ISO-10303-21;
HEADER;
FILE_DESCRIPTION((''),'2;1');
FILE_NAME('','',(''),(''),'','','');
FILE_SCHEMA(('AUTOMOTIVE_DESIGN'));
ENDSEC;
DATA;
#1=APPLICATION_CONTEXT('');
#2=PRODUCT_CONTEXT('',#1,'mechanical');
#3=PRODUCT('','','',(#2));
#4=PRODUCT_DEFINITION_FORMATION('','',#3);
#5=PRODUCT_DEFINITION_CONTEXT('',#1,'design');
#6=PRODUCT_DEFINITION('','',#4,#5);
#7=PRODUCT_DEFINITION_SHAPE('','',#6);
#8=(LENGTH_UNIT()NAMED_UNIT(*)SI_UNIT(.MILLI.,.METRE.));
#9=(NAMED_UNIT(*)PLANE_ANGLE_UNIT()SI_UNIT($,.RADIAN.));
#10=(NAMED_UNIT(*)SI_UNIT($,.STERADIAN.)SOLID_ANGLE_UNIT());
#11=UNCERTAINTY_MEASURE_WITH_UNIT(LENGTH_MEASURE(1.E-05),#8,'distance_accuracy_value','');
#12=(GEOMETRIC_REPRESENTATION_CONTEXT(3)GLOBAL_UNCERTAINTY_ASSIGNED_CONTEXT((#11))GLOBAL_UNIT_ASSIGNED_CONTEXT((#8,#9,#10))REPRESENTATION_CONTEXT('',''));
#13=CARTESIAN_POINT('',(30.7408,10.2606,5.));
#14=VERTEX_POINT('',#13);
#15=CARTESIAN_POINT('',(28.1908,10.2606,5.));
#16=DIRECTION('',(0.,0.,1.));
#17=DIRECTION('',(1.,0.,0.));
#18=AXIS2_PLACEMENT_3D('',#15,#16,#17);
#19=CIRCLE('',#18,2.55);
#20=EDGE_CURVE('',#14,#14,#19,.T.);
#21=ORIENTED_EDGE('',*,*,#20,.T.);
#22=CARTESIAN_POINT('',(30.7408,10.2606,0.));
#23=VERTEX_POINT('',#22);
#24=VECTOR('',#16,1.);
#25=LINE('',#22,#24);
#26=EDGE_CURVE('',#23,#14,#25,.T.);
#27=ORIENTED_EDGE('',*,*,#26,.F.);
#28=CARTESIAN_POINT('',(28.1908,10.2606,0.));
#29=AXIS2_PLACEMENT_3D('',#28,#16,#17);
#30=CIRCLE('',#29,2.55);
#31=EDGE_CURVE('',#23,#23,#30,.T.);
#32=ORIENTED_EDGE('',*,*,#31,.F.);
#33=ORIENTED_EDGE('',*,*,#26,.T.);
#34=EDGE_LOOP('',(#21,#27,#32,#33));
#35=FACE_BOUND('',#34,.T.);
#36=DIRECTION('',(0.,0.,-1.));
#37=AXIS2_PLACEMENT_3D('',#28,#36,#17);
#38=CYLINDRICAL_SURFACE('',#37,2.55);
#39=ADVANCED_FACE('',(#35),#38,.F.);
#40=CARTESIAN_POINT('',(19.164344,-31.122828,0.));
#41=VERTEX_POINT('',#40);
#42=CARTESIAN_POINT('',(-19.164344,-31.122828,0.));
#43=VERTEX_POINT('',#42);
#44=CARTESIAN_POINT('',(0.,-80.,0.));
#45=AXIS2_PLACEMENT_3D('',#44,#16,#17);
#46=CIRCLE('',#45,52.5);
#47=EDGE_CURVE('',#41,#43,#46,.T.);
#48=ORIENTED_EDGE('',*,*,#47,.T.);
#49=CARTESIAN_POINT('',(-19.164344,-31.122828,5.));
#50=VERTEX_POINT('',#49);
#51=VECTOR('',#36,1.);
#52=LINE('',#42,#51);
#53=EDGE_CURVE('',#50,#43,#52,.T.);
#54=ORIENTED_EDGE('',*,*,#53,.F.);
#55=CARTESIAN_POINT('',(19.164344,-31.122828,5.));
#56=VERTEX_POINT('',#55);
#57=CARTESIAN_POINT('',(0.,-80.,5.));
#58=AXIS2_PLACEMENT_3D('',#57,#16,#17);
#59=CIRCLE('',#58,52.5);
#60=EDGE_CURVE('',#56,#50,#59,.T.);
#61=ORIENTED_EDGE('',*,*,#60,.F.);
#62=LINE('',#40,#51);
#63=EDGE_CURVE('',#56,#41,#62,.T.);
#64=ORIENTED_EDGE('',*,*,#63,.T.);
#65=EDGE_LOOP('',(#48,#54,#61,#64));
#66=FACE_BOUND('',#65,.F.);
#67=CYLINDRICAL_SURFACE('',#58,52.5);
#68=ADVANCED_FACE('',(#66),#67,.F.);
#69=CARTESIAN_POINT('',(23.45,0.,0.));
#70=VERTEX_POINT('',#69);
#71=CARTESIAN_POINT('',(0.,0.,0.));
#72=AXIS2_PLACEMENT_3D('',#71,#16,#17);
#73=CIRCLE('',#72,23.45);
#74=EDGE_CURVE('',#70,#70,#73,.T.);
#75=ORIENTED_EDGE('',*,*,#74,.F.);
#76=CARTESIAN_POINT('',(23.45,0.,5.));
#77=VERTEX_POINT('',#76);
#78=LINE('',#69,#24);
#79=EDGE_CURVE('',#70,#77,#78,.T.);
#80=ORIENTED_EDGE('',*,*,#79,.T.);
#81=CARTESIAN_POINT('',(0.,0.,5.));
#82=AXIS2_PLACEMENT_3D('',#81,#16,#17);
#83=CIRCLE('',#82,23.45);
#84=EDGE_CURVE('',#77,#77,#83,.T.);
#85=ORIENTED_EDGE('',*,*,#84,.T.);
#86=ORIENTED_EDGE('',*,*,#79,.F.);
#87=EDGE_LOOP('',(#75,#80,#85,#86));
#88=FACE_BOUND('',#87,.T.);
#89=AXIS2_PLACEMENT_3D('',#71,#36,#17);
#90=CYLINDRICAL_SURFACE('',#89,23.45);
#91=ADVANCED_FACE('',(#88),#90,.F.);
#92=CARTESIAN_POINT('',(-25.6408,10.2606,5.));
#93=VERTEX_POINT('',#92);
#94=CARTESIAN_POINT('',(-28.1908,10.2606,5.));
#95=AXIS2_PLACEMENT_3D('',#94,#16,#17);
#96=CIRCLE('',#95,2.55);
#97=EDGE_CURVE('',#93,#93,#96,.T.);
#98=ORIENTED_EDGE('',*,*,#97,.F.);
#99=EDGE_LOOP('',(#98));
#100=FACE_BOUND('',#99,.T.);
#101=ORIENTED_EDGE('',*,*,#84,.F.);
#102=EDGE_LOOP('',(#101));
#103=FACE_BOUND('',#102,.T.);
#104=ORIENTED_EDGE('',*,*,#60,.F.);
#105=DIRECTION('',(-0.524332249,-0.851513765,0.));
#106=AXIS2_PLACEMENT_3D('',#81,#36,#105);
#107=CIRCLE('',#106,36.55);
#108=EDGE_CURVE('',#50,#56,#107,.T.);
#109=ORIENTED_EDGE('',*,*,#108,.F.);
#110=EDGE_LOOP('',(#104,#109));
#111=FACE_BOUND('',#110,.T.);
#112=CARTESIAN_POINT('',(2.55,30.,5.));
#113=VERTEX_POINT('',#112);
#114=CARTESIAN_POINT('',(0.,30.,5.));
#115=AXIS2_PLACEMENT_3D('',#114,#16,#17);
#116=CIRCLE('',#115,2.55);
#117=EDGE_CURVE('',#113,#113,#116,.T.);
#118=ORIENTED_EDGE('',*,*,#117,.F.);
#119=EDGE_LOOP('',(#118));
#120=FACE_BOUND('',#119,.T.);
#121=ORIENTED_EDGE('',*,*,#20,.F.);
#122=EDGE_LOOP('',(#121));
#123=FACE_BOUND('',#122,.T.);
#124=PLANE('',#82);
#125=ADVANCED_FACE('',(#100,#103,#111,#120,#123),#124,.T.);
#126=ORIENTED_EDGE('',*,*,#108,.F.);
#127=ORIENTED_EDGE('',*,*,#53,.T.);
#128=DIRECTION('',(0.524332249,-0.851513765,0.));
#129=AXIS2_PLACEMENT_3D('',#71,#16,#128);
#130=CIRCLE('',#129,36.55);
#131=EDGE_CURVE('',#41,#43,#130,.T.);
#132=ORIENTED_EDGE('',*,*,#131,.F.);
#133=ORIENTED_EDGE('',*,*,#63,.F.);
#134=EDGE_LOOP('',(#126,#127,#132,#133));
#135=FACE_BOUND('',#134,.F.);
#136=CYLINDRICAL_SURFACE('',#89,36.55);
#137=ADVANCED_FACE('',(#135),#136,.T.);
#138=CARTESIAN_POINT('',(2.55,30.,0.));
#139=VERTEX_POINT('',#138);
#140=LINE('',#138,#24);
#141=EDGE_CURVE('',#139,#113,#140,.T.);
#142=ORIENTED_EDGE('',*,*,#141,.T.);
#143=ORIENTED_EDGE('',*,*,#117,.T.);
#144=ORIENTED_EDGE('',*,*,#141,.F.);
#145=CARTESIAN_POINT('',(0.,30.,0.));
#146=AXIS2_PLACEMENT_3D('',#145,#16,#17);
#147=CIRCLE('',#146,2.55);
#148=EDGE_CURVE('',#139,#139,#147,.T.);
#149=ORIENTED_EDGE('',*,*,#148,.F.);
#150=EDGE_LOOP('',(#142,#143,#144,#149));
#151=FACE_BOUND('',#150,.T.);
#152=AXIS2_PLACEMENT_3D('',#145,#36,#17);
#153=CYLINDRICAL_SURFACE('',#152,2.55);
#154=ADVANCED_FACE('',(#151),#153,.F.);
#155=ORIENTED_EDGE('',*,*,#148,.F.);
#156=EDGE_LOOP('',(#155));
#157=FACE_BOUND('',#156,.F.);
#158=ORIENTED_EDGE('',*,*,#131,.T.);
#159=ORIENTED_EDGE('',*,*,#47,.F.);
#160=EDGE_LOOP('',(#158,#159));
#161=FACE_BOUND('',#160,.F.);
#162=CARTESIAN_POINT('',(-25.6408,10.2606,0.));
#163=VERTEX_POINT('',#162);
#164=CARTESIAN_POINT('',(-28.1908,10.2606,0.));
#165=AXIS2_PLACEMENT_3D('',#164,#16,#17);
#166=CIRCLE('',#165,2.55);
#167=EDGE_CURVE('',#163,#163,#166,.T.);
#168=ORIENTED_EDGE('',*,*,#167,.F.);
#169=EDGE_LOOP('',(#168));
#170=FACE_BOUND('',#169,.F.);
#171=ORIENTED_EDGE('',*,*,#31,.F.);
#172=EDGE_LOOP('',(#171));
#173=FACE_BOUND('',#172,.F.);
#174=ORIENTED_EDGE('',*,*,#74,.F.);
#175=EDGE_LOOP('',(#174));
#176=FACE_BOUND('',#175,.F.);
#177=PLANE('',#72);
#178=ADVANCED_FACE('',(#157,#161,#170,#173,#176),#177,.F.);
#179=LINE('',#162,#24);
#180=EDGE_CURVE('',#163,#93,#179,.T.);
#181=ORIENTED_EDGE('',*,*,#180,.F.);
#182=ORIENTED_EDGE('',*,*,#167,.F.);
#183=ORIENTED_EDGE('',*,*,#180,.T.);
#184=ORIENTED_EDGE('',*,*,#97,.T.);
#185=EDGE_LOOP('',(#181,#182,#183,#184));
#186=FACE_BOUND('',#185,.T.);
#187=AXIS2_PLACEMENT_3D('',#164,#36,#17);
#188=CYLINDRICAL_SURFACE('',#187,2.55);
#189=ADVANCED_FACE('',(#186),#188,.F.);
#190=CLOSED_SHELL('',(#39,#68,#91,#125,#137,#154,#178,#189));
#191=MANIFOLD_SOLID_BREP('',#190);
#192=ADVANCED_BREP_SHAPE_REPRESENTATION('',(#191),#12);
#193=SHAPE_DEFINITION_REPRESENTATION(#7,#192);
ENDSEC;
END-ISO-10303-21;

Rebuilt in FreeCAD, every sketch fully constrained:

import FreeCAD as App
import Part
import Sketcher
from FreeCAD import Vector

doc = App.newDocument("Part")
body = doc.addObject("PartDesign::Body", "Body")

sketch1 = body.newObject("Sketcher::SketchObject", "Sketch")
sketch1.AttachmentSupport = (doc.getObject("XY_Plane"), [""])
sketch1.MapMode = "FlatFace"
sketch1.addGeometry(Part.Circle(Vector(0, 0, 0), Vector(0, 0, 1), 36.5), False)
sketch1.addGeometry(Part.Circle(Vector(-28.2, 10.3, 0), Vector(0, 0, 1), 2.5), False)
sketch1.addGeometry(Part.Circle(Vector(0, 0, 0), Vector(0, 0, 1), 23.4), False)
sketch1.addGeometry(Part.Circle(Vector(28.2, 10.3, 0), Vector(0, 0, 1), 2.5), False)
sketch1.addGeometry(Part.Circle(Vector(0, 30, 0), Vector(0, 0, 1), 2.5), False)
sketch1.addConstraint(Sketcher.Constraint("Coincident", 0, 3, -1, 1))
sketch1.addConstraint(Sketcher.Constraint("Coincident", 2, 3, -1, 1))
sketch1.addConstraint(Sketcher.Constraint("Equal", 1, 3))
sketch1.addConstraint(Sketcher.Constraint("Equal", 3, 4))
sketch1.addConstraint(Sketcher.Constraint("Symmetric", 1, 3, 3, 3, -2))
sketch1.addConstraint(Sketcher.Constraint("PointOnObject", 4, 3, -2))
sketch1.addConstraint(Sketcher.Constraint("Diameter", 0, 73.1))
sketch1.addConstraint(Sketcher.Constraint("Diameter", 1, 5.1))
sketch1.addConstraint(Sketcher.Constraint("Diameter", 2, 46.9))
sketch1.addConstraint(Sketcher.Constraint("DistanceY", -1, 1, 4, 3, 30.0))
sketch1.addConstraint(Sketcher.Constraint("DistanceX", 1, 3, -1, 1, 28.1908))
sketch1.addConstraint(Sketcher.Constraint("DistanceY", -1, 1, 1, 3, 10.2606))
pad1 = body.newObject("PartDesign::Pad", "Pad")
pad1.Profile = sketch1
pad1.Length = 5

sketch2 = body.newObject("Sketcher::SketchObject", "Sketch001")
sketch2.AttachmentSupport = (doc.getObject("XY_Plane"), [""])
sketch2.MapMode = "FlatFace"
sketch2.AttachmentOffset = App.Placement(Vector(0, 0, 5), App.Rotation())
sketch2.addGeometry(Part.Circle(Vector(0, -80, 0), Vector(0, 0, 1), 52), False)
sketch2.addConstraint(Sketcher.Constraint("PointOnObject", 0, 3, -2))
sketch2.addConstraint(Sketcher.Constraint("Diameter", 0, 105.0))
sketch2.addConstraint(Sketcher.Constraint("DistanceY", 0, 3, -1, 1, 80.0))
pocket1 = body.newObject("PartDesign::Pocket", "Pocket")
pocket1.Profile = sketch2
pocket1.Length = 10

doc.recompute()
